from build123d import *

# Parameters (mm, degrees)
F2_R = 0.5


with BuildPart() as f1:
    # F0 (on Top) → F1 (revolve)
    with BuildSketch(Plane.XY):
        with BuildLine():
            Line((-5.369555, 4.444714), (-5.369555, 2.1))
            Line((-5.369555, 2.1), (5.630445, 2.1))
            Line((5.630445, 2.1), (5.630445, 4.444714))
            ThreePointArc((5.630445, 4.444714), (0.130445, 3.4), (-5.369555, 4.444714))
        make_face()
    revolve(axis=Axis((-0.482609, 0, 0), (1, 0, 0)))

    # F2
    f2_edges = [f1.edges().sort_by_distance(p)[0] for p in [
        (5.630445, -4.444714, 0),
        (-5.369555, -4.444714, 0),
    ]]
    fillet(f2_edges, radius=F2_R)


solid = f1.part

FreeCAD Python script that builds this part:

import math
import FreeCAD as App
import Part
import Sketcher


def edges_at(feature, points):
    """Names of the edges that pass closest to the given points."""
    edges = feature.Shape.Edges
    near = lambda p: min(range(len(edges)), key=lambda i: edges[i].distToShape(Part.Vertex(*p))[0])
    return sorted({f"Edge{near(p) + 1}" for p in points})

doc = App.newDocument("Part")
body = doc.addObject("PartDesign::Body", "Body")

sketch1 = body.newObject("Sketcher::SketchObject", "Sketch")
sketch1.AttachmentSupport = (doc.getObject("XY_Plane"), [""])
sketch1.MapMode = "FlatFace"
sketch1.addGeometry([
    Part.LineSegment(App.Vector(-5.4, 4.4, 0), App.Vector(-5.4, 2.1, 0)),
    Part.LineSegment(App.Vector(-5.4, 2.1, 0), App.Vector(5.6, 2.1, 0)),
    Part.LineSegment(App.Vector(5.6, 2.1, 0), App.Vector(5.6, 4.4, 0)),
    Part.ArcOfCircle(Part.Circle(App.Vector(0.1, 18.4, 0), App.Vector(0, 0, 1), 15), math.radians(-112), math.radians(-68)),
], False)
sketch1.addConstraint([
    Sketcher.Constraint("Coincident", 0, 2, 1, 1),
    Sketcher.Constraint("Coincident", 1, 2, 2, 1),
    Sketcher.Constraint("Coincident", 2, 2, 3, 2),
    Sketcher.Constraint("Coincident", 3, 1, 0, 1),
    Sketcher.Constraint("Vertical", 0),
    Sketcher.Constraint("Horizontal", 1),
    Sketcher.Constraint("Vertical", 2),
    Sketcher.Constraint("Horizontal", 2, 2, 3, 1),
    Sketcher.Constraint("DistanceX", 1, 1, 1, 2, 11.0),
    Sketcher.Constraint("DistanceY", -1, 1, 0, 2, 2.1),
    Sketcher.Constraint("Radius", 3, 15.000004),
    Sketcher.Constraint("DistanceY", 0, 2, 0, 1, 2.344714),
    Sketcher.Constraint("DistanceX", -1, 1, 3, 3, 0.130445),
])
revolution = body.newObject("PartDesign::Revolution", "Revolution")
revolution.Profile = sketch1
revolution.ReferenceAxis = (sketch1, ["H_Axis"])
revolution.Angle = 360
doc.recompute()

fillet = body.newObject("PartDesign::Fillet", "Fillet")
fillet.Base = (revolution, edges_at(revolution, [(5.63, -4.445, 0), (-5.37, -4.445, 0)]))
fillet.Radius = 0.5

doc.recompute()
